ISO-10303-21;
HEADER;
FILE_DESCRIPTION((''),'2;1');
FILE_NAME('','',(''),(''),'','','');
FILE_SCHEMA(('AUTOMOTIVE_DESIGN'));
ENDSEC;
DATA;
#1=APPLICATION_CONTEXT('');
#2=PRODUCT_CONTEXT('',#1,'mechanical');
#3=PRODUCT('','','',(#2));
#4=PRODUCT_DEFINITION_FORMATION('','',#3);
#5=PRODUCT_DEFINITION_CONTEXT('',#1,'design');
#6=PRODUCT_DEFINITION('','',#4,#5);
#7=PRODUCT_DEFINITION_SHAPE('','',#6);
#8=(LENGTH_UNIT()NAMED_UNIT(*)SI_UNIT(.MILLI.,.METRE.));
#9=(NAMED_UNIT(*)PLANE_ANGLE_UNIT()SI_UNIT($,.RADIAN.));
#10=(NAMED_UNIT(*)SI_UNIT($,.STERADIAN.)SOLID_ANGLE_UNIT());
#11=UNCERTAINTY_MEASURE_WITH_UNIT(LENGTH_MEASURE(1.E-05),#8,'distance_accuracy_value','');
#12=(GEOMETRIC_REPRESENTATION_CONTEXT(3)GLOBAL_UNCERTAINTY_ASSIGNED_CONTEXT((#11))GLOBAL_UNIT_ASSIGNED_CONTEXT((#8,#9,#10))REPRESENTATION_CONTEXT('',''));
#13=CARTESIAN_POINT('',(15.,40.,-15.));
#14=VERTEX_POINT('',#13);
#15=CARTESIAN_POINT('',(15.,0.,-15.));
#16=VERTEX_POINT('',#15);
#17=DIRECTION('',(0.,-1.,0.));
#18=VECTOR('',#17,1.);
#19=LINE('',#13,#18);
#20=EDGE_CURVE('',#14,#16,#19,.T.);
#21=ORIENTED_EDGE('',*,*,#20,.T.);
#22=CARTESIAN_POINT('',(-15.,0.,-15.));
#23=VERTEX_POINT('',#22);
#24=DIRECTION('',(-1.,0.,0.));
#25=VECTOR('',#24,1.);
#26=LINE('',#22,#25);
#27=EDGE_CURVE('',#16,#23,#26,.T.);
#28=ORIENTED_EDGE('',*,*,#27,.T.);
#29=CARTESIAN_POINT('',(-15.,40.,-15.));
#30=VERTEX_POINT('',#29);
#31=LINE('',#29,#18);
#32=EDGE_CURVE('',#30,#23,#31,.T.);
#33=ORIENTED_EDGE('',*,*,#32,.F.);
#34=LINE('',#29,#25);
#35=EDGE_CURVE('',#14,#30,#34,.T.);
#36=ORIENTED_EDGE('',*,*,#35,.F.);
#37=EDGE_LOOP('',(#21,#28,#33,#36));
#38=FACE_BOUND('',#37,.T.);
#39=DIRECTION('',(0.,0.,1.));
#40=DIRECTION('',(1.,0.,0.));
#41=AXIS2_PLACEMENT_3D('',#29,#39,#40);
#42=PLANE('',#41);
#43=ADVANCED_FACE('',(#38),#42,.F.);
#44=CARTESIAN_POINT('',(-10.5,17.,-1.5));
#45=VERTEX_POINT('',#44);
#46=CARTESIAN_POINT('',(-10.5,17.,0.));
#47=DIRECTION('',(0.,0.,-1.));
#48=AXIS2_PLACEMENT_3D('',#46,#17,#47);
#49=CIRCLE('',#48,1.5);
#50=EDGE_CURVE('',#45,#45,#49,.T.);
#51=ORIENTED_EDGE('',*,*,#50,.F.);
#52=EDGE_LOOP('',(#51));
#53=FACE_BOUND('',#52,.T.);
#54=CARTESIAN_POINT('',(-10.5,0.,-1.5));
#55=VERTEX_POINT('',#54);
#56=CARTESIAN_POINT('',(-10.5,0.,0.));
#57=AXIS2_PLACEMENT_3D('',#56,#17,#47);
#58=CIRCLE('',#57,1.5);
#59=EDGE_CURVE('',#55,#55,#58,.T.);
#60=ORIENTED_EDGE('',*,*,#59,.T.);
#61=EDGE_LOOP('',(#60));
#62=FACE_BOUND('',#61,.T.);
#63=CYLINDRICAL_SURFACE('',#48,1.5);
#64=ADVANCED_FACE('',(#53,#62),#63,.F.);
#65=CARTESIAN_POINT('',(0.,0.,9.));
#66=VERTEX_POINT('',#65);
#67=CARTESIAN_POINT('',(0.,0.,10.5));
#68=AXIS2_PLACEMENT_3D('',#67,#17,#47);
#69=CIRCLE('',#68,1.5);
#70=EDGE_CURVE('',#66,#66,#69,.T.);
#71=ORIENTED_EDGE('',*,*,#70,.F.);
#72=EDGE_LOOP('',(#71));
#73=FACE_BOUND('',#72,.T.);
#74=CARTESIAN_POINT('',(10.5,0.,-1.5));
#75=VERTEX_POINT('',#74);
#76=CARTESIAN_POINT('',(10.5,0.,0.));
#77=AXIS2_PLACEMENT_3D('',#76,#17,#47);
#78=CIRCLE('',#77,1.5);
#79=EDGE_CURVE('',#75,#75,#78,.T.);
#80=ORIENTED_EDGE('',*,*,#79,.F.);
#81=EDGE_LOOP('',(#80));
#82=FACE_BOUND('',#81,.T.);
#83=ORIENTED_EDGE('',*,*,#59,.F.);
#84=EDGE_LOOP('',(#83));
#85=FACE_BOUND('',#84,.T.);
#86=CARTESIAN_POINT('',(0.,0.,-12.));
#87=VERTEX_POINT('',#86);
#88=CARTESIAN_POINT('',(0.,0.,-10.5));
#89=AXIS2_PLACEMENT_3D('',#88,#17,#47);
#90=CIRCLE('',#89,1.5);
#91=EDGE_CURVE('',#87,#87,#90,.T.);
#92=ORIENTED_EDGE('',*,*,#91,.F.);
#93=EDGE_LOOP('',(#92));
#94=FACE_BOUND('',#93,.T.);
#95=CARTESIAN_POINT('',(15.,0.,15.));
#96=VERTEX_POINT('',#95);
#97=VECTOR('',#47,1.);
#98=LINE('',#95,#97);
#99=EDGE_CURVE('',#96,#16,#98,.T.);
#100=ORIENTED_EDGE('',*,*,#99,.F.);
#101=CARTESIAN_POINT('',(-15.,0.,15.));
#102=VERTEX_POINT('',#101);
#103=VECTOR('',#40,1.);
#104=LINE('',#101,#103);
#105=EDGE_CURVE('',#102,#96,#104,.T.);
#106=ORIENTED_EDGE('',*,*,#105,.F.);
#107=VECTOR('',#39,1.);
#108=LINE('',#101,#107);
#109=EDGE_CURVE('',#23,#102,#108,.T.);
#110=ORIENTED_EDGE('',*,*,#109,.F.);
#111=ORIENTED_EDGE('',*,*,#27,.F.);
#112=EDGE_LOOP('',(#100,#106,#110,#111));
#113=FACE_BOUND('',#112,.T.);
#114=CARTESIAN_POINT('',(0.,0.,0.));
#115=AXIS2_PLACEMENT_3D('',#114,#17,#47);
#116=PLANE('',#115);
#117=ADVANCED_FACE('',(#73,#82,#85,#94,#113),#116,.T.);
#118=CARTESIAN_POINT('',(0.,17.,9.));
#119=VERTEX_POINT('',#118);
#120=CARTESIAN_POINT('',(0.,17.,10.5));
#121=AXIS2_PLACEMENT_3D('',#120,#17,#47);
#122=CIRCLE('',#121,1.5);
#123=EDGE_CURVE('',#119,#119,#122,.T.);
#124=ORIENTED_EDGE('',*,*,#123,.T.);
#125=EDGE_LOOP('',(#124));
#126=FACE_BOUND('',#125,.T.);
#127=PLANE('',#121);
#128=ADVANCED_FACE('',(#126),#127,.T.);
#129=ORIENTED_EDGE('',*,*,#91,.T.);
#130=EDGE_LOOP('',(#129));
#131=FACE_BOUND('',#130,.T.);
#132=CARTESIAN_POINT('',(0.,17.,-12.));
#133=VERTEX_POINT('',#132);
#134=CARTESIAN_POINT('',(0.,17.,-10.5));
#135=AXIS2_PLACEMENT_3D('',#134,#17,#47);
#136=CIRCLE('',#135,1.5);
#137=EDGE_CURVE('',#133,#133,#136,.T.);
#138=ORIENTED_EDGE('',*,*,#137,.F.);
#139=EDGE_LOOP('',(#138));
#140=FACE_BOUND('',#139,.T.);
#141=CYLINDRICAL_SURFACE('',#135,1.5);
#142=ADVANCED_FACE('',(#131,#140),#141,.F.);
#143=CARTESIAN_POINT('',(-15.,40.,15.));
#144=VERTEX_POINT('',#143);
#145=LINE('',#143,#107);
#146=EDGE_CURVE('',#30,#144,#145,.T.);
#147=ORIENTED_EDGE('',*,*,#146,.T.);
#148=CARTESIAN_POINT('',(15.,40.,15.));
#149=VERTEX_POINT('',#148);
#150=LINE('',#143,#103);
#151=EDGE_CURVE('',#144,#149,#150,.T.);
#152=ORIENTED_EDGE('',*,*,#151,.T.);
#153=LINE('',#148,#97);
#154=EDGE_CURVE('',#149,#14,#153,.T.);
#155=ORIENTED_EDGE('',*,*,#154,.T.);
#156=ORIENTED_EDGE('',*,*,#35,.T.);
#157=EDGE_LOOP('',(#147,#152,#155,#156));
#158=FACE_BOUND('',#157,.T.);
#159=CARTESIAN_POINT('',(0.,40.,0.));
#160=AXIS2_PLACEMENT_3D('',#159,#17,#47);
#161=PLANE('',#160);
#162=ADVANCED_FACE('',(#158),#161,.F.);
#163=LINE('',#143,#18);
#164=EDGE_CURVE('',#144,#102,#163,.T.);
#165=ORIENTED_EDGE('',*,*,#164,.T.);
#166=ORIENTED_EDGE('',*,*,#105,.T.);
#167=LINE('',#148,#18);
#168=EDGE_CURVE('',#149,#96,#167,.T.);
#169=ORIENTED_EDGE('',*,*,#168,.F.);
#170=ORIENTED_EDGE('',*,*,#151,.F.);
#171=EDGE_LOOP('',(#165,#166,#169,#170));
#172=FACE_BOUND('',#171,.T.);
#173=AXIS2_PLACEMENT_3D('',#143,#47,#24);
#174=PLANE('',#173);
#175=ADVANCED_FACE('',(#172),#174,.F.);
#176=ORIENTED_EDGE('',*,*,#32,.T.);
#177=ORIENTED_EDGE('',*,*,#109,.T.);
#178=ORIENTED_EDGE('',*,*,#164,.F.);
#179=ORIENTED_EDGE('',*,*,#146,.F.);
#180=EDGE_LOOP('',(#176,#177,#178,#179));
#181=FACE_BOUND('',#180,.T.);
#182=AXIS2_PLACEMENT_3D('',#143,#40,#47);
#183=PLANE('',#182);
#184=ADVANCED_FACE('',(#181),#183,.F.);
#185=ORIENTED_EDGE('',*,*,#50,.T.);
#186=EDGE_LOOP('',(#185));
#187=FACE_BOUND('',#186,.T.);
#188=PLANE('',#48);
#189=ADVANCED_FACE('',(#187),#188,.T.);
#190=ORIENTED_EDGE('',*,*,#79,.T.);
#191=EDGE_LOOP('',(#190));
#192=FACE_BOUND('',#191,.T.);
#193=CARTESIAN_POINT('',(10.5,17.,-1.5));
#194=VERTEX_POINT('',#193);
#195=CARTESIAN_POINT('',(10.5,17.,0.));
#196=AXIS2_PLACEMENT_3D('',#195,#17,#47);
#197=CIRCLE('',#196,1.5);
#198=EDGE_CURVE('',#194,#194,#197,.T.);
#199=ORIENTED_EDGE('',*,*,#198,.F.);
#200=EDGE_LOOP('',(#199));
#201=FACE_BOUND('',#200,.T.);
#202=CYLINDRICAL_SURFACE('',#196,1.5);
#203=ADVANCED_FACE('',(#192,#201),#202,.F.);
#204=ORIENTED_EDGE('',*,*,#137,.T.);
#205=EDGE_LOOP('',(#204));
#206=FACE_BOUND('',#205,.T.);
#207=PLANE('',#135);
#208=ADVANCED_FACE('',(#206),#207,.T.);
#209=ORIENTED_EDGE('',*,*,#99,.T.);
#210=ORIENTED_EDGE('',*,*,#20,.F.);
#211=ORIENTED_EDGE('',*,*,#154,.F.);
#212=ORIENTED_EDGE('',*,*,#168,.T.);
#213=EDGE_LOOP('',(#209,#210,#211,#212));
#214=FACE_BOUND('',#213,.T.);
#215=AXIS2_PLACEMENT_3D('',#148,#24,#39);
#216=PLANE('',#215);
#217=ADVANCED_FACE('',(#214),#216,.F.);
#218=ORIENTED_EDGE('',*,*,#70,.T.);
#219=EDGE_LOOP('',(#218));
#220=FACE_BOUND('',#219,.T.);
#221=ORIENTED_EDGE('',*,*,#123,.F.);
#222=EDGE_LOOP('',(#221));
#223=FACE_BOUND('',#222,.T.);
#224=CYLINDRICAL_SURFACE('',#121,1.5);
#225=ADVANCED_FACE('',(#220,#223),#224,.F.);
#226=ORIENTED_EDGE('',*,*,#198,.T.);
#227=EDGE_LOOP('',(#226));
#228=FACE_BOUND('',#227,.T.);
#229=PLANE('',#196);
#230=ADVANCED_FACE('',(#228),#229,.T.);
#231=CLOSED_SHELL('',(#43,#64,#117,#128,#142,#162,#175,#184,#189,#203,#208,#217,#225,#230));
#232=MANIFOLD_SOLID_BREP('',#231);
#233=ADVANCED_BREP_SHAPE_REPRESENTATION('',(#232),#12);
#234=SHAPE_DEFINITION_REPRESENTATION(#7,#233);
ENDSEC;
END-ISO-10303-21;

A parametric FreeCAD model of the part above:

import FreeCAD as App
import Part
import Sketcher

doc = App.newDocument("Part")
body = doc.addObject("PartDesign::Body", "Body")

# Sketch on XZ plane
sketch1 = doc.addObject("Sketcher::SketchObject", "Sketch")
body.addObject(sketch1)
sketch1.AttachmentSupport = (doc.XZ_Plane, [""])
sketch1.MapMode = "FlatFace"
sketch1.addGeometry([
    Part.LineSegment(App.Vector(-15, -15, 0), App.Vector(-15, 15, 0)),
    Part.LineSegment(App.Vector(-15, 15, 0), App.Vector(15, 15, 0)),
    Part.LineSegment(App.Vector(15, 15, 0), App.Vector(15, -15, 0)),
    Part.LineSegment(App.Vector(15, -15, 0), App.Vector(-15, -15, 0)),
], False)
sketch1.addConstraint([
    Sketcher.Constraint("Coincident", 0, 2, 1, 1),
    Sketcher.Constraint("Coincident", 1, 2, 2, 1),
    Sketcher.Constraint("Coincident", 2, 2, 3, 1),
    Sketcher.Constraint("Coincident", 3, 2, 0, 1),
    Sketcher.Constraint("Vertical", 0),
    Sketcher.Constraint("Horizontal", 1),
    Sketcher.Constraint("Vertical", 2),
    Sketcher.Constraint("Horizontal", 3),
    Sketcher.Constraint("Symmetric", 0, 2, 2, 2, -1, 1),
    Sketcher.Constraint("Equal", 3, 0),
    Sketcher.Constraint("DistanceX", 1, 1, 1, 2, 30.0),
])
pad1 = doc.addObject("PartDesign::Pad", "Pad")
body.addObject(pad1)
pad1.Profile = sketch1
pad1.Length = 40
pad1.Reversed = True

# Sketch on XZ plane
sketch2 = doc.addObject("Sketcher::SketchObject", "Sketch001")
body.addObject(sketch2)
sketch2.AttachmentSupport = (doc.XZ_Plane, [""])
sketch2.MapMode = "FlatFace"
sketch2.addGeometry([
    Part.Circle(App.Vector(0, 10.5, 0), App.Vector(0, 0, 1), 1.5),
    Part.Circle(App.Vector(10.5, 0, 0), App.Vector(0, 0, 1), 1.5),
    Part.Circle(App.Vector(0, -10.5, 0), App.Vector(0, 0, 1), 1.5),
    Part.Circle(App.Vector(-10.5, 0, 0), App.Vector(0, 0, 1), 1.5),
], False)
sketch2.addConstraint([
    Sketcher.Constraint("Equal", 0, 1),
    Sketcher.Constraint("Equal", 1, 2),
    Sketcher.Constraint("Equal", 2, 3),
    Sketcher.Constraint("Symmetric", 0, 3, 2, 3, -1, 1),
    Sketcher.Constraint("Symmetric", 1, 3, 3, 3, -1, 1),
    Sketcher.Constraint("PointOnObject", 0, 3, -2),
    Sketcher.Constraint("PointOnObject", 1, 3, -1),
    Sketcher.Constraint("Diameter", 0, 3.0),
    Sketcher.Constraint("DistanceY", 2, 3, 0, 3, 21.0),
    Sketcher.Constraint("DistanceX", 3, 3, 1, 3, 21.0),
])
pocket1 = doc.addObject("PartDesign::Pocket", "Pocket")
body.addObject(pocket1)
pocket1.Profile = sketch2
pocket1.Length = 17

doc.recompute()
